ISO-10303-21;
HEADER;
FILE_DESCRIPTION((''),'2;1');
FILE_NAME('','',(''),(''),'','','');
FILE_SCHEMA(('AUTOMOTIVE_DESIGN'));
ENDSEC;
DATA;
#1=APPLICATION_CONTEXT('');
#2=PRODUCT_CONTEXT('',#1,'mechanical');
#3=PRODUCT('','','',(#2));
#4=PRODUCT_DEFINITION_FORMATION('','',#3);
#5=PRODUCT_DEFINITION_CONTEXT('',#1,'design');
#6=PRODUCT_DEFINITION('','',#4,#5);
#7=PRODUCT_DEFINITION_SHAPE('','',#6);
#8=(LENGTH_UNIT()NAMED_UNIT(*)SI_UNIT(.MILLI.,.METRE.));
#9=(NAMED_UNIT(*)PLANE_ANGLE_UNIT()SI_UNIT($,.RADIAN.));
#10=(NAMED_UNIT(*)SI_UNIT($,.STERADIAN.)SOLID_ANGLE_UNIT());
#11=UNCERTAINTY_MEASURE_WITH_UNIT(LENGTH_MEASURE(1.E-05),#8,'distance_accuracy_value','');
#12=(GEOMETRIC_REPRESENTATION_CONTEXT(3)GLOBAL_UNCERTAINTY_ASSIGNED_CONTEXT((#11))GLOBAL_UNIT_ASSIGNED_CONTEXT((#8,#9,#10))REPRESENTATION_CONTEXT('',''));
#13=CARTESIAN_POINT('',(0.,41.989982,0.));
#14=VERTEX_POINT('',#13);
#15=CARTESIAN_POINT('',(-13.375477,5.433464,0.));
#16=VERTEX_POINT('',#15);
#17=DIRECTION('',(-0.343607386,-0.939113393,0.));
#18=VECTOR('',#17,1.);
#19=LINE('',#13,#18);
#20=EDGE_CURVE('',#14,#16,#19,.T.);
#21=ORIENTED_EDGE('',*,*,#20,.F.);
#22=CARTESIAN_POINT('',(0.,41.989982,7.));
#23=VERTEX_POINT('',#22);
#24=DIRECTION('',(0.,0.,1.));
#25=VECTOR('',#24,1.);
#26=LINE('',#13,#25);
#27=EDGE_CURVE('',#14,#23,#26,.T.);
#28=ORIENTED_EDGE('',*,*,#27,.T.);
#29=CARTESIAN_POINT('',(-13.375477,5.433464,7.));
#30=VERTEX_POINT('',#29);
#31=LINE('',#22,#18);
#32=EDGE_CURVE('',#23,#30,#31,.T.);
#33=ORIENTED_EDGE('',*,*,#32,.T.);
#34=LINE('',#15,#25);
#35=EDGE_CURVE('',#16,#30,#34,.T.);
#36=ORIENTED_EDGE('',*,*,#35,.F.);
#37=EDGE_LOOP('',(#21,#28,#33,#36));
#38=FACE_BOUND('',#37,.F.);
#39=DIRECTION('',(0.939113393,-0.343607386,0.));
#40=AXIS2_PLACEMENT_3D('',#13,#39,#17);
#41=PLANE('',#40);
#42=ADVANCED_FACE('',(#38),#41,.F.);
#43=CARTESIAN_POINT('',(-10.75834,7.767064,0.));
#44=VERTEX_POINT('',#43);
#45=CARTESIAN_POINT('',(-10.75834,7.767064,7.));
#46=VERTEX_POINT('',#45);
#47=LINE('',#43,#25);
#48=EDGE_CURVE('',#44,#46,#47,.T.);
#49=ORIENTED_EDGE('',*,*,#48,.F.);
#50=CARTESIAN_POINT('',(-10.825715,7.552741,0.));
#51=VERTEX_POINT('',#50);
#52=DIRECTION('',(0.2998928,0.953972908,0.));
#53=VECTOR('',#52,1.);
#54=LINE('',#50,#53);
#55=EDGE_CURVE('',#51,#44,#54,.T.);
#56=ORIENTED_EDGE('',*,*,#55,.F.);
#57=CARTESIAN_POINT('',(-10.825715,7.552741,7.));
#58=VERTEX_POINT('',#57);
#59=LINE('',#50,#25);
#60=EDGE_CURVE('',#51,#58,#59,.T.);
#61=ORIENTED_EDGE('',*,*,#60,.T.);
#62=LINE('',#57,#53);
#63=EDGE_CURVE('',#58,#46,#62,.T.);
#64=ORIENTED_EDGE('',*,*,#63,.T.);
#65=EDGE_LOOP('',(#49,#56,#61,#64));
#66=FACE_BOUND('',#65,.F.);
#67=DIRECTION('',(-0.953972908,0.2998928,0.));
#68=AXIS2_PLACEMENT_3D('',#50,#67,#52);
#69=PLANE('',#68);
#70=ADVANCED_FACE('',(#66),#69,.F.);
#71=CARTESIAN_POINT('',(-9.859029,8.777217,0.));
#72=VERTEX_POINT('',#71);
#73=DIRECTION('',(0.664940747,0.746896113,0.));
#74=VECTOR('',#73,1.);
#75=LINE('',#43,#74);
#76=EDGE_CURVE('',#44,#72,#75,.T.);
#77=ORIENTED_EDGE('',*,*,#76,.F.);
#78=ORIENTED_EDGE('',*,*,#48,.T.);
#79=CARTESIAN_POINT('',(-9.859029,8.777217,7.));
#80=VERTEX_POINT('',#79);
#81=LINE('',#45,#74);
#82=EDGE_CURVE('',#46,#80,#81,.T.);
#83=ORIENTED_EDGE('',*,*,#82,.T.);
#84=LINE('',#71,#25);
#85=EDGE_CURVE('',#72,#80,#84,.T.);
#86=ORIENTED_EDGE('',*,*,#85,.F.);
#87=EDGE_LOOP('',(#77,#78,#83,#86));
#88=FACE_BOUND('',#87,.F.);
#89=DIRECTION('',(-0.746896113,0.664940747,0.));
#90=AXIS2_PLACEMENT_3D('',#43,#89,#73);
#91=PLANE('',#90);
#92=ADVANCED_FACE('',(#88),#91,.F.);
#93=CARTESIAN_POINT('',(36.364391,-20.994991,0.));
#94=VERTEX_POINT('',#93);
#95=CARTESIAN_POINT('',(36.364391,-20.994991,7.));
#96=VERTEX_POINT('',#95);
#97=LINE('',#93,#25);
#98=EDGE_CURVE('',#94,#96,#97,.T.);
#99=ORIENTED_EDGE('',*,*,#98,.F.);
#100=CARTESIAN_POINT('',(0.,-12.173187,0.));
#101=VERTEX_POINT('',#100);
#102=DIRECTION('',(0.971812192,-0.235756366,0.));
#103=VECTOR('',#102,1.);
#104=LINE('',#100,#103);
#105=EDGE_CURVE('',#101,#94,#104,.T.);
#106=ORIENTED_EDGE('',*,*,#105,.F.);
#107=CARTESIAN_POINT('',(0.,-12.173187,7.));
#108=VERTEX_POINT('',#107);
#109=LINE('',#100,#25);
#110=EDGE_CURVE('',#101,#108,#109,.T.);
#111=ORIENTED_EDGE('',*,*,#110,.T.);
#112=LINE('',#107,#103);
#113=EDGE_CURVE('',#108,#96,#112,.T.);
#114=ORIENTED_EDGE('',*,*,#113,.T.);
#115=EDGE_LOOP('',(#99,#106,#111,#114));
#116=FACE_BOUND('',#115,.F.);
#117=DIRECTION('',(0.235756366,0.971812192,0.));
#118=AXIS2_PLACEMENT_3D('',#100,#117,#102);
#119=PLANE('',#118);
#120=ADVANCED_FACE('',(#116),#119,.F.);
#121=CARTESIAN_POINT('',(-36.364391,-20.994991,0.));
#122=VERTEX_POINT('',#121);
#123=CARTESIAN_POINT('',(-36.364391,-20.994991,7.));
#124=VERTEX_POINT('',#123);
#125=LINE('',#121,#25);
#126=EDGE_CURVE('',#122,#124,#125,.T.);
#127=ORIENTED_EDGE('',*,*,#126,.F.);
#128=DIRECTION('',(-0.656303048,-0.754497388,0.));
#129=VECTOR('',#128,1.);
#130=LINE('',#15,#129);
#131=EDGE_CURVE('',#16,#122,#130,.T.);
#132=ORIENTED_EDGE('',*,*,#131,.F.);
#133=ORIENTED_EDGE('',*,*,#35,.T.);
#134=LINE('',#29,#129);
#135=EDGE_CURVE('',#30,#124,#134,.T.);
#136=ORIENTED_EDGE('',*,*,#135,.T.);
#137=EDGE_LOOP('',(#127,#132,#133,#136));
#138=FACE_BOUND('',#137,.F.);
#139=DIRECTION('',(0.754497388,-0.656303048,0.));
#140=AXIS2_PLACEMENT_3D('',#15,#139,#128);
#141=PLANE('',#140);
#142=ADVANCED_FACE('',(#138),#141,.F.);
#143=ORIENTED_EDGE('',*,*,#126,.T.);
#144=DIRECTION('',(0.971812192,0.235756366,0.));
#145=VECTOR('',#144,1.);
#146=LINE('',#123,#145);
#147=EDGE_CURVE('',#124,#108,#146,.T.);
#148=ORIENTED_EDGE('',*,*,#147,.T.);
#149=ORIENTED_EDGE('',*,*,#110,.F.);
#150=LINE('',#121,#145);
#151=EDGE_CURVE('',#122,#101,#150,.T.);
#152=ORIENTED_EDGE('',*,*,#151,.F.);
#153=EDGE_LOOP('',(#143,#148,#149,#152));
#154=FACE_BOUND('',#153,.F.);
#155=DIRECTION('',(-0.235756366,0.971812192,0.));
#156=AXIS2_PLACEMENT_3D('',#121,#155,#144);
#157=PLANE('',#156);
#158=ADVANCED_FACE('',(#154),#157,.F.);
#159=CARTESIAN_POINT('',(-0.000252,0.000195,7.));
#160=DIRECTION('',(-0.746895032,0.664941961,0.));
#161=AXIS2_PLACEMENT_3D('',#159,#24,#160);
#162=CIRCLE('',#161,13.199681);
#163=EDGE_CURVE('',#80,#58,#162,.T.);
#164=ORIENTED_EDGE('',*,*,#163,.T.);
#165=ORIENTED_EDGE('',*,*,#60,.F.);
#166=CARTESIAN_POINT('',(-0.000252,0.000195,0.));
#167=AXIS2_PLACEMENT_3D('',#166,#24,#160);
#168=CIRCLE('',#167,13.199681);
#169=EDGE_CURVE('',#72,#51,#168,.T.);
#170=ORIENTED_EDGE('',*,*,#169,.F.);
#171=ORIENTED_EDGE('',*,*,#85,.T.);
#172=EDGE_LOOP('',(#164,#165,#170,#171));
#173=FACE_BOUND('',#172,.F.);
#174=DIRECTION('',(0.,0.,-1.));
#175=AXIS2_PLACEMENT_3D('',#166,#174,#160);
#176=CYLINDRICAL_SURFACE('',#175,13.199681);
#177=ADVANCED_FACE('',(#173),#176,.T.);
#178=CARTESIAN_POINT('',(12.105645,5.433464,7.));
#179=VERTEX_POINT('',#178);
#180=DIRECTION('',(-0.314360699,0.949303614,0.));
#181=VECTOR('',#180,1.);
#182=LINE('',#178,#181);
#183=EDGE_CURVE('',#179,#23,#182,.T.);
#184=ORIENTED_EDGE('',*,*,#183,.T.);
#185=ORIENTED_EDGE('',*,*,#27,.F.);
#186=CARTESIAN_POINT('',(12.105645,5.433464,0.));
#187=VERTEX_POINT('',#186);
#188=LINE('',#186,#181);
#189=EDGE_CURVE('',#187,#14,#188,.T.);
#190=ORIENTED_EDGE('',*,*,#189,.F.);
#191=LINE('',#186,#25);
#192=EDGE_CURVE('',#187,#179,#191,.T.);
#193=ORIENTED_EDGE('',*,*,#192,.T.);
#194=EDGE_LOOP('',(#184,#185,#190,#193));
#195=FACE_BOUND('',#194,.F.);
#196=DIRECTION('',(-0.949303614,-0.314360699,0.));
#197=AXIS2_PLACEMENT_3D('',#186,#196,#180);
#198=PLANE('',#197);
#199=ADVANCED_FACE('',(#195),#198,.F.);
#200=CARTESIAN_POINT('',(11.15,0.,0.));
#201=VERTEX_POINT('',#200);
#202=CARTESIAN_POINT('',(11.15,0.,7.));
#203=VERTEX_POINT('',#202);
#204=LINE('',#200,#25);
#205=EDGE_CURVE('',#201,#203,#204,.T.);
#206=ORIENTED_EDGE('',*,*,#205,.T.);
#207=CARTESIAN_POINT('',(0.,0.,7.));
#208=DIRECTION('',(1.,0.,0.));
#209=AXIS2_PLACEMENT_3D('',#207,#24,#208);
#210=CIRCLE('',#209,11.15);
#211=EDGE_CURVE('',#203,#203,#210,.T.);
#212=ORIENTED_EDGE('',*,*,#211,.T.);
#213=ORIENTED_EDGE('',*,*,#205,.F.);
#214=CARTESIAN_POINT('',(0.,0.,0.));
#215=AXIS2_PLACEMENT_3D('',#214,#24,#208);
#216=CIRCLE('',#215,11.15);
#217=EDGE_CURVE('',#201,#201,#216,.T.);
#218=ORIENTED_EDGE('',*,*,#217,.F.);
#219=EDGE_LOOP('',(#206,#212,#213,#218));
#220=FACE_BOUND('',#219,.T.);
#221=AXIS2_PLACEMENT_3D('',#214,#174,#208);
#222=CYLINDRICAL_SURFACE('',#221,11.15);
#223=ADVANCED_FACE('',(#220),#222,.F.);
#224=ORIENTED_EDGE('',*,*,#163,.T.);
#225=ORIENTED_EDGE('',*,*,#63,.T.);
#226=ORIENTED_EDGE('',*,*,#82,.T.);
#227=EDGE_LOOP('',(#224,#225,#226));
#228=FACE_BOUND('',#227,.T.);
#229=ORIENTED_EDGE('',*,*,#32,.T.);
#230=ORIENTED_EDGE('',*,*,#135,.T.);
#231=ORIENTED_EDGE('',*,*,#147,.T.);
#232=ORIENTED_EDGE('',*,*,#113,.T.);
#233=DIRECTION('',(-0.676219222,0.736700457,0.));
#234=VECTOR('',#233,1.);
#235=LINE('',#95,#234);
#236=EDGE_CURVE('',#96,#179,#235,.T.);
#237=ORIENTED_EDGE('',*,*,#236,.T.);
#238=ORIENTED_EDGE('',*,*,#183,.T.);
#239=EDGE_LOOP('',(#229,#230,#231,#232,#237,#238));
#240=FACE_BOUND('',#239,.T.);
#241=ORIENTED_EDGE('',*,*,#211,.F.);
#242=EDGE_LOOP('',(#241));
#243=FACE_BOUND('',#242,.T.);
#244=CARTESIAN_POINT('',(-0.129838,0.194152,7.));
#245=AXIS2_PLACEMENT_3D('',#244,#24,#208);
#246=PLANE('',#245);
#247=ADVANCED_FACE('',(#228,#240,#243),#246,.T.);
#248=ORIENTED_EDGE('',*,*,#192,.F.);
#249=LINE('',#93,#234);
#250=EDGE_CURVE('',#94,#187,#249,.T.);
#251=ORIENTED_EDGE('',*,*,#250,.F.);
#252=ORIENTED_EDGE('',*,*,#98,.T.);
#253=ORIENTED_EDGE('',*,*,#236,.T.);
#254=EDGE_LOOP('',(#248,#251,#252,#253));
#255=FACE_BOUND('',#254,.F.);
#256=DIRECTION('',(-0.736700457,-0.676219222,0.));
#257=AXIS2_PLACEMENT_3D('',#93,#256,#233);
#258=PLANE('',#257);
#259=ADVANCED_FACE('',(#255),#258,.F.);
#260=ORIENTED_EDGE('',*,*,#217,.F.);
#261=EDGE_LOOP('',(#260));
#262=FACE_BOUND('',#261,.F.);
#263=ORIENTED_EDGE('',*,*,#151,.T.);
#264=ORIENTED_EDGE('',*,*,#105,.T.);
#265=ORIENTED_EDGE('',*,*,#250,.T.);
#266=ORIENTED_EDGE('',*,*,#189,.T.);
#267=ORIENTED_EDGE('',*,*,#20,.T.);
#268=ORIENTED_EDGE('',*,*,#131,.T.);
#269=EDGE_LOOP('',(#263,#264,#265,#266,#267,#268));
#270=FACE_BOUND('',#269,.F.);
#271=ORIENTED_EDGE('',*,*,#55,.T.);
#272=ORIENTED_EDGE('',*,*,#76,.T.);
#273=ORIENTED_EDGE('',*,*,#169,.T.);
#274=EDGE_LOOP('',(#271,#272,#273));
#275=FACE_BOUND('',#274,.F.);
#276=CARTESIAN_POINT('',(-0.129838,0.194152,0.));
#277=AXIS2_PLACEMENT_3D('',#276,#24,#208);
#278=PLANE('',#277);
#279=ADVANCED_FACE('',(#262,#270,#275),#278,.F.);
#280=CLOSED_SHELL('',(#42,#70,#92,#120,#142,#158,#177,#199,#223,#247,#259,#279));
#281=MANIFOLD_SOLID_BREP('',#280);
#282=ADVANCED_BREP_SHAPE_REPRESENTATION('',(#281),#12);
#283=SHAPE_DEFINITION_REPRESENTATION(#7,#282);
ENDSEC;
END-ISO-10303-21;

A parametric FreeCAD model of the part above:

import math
import FreeCAD as App
import Part
import Sketcher

doc = App.newDocument("Part")
body = doc.addObject("PartDesign::Body", "Body")

# Sketch on XY plane
sketch1 = body.newObject("Sketcher::SketchObject", "Sketch")
sketch1.AttachmentSupport = (doc.getObject("XY_Plane"), [""])
sketch1.MapMode = "FlatFace"
sketch1.addGeometry([
    Part.LineSegment(App.Vector(12.11, 5.43, 0), App.Vector(0, 41.99, 0)),  # 0
    Part.LineSegment(App.Vector(0, 41.99, 0), App.Vector(-13.38, 5.43, 0)),  # 1
    Part.LineSegment(App.Vector(-13.38, 5.43, 0), App.Vector(-36.36, -20.99, 0)),  # 2
    Part.LineSegment(App.Vector(-36.36, -20.99, 0), App.Vector(0, -12.17, 0)),  # 3
    Part.LineSegment(App.Vector(0, -12.17, 0), App.Vector(36.36, -20.99, 0)),  # 4
    Part.LineSegment(App.Vector(36.36, -20.99, 0), App.Vector(12.11, 5.43, 0)),  # 5
    Part.LineSegment(App.Vector(-10.76, 7.77, 0), App.Vector(-9.86, 8.78, 0)),  # 6
    Part.ArcOfCircle(Part.Circle(App.Vector(0, 0, 0), App.Vector(0, 0, 1), 13.2), math.radians(138.32), math.radians(145.1)),  # 7
    Part.LineSegment(App.Vector(-10.83, 7.55, 0), App.Vector(-10.76, 7.77, 0)),  # 8
    Part.Circle(App.Vector(0, 0, 0), App.Vector(0, 0, 1), 11.15),  # 9
], False)
sketch1.addConstraint([
    Sketcher.Constraint("Coincident", 0, 2, 1, 1),
    Sketcher.Constraint("Coincident", 1, 2, 2, 1),
    Sketcher.Constraint("Coincident", 2, 2, 3, 1),
    Sketcher.Constraint("Coincident", 3, 2, 4, 1),
    Sketcher.Constraint("Coincident", 4, 2, 5, 1),
    Sketcher.Constraint("Coincident", 5, 2, 0, 1),
    Sketcher.Constraint("Tangent", 6, 2, 7, 1),
    Sketcher.Constraint("Coincident", 7, 2, 8, 1),
    Sketcher.Constraint("Coincident", 8, 2, 6, 1),
    Sketcher.Constraint("Coincident", 9, 3, -1, 1),
    Sketcher.Constraint("Symmetric", 2, 2, 4, 2, -2),
    Sketcher.Constraint("PointOnObject", 0, 2, -2),
    Sketcher.Constraint("PointOnObject", 3, 2, -2),
    Sketcher.Constraint("Horizontal", 1, 2, 5, 2),
    Sketcher.Constraint("Diameter", 9, 22.3),
    Sketcher.Constraint("Radius", 7, 13.199681),
    Sketcher.Constraint("DistanceY", 1, 2, 8, 2, 2.3336),
    Sketcher.Constraint("Distance", 1, 38.926628),
    Sketcher.Constraint("DistanceY", -1, 1, 0, 2, 41.989982),
    Sketcher.Constraint("DistanceX", 2, 2, -1, 1, 36.364391),
    Sketcher.Constraint("DistanceY", 2, 2, -1, 1, 20.994991),
    Sketcher.Constraint("DistanceX", 6, 2, -1, 1, 9.859029),
    Sketcher.Constraint("DistanceY", -1, 1, 7, 2, 7.552741),
    Sketcher.Constraint("DistanceX", 8, 2, -1, 1, 10.75834),
    Sketcher.Constraint("DistanceY", 7, 3, 1, 2, 5.433269),
    Sketcher.Constraint("DistanceY", 3, 2, 7, 3, 12.173382),
    Sketcher.Constraint("DistanceY", 3, 2, 0, 2, 54.163169),
    Sketcher.Constraint("DistanceX", 1, 2, 5, 2, 25.481122),
])
pad1 = body.newObject("PartDesign::Pad", "Pad")
pad1.Profile = sketch1
pad1.Length = 7

doc.recompute()
